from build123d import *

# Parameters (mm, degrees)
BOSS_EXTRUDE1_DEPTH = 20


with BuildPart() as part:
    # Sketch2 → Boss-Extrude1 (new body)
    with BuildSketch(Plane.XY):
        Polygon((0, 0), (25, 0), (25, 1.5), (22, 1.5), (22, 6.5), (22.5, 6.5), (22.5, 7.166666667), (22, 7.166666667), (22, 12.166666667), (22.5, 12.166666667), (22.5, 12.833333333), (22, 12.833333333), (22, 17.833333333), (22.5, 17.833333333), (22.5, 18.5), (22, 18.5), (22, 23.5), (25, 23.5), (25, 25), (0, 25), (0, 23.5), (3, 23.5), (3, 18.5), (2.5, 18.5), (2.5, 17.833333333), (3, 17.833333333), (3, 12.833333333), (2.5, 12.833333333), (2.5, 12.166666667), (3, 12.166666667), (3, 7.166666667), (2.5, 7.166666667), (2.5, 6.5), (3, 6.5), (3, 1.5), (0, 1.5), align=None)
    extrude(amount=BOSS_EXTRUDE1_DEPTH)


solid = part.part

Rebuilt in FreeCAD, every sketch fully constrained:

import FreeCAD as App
import Part
import Sketcher
from FreeCAD import Vector
Q = App.Units.Quantity

doc = App.newDocument("Part")
body = doc.addObject("PartDesign::Body", "Body")

sketch1 = body.newObject("Sketcher::SketchObject", "Sketch")
sketch1.AttachmentSupport = (doc.getObject("XY_Plane"), [""])
sketch1.MapMode = "FlatFace"
sketch1.addGeometry([
    Part.LineSegment(Vector(0, 0, 0), Vector(25, 0, 0)),
    Part.LineSegment(Vector(25, 0, 0), Vector(25, 1.5, 0)),
    Part.LineSegment(Vector(25, 1.5, 0), Vector(22, 1.5, 0)),
    Part.LineSegment(Vector(22, 1.5, 0), Vector(22, 6.5, 0)),
    Part.LineSegment(Vector(22, 6.5, 0), Vector(22.5, 6.5, 0)),
    Part.LineSegment(Vector(22.5, 6.5, 0), Vector(22.5, 7.166667, 0)),
    Part.LineSegment(Vector(22.5, 7.166667, 0), Vector(22, 7.166667, 0)),
    Part.LineSegment(Vector(22, 7.166667, 0), Vector(22, 12.166667, 0)),
    Part.LineSegment(Vector(22, 12.166667, 0), Vector(22.5, 12.166667, 0)),
    Part.LineSegment(Vector(22.5, 12.166667, 0), Vector(22.5, 12.833333, 0)),
    Part.LineSegment(Vector(22.5, 12.833333, 0), Vector(22, 12.833333, 0)),
    Part.LineSegment(Vector(22, 12.833333, 0), Vector(22, 17.833333, 0)),
    Part.LineSegment(Vector(22, 17.833333, 0), Vector(22.5, 17.833333, 0)),
    Part.LineSegment(Vector(22.5, 17.833333, 0), Vector(22.5, 18.5, 0)),
    Part.LineSegment(Vector(22.5, 18.5, 0), Vector(22, 18.5, 0)),
    Part.LineSegment(Vector(22, 18.5, 0), Vector(22, 23.5, 0)),
    Part.LineSegment(Vector(22, 23.5, 0), Vector(25, 23.5, 0)),
    Part.LineSegment(Vector(25, 23.5, 0), Vector(25, 25, 0)),
    Part.LineSegment(Vector(25, 25, 0), Vector(0, 25, 0)),
    Part.LineSegment(Vector(0, 25, 0), Vector(0, 23.5, 0)),
    Part.LineSegment(Vector(0, 23.5, 0), Vector(3, 23.5, 0)),
    Part.LineSegment(Vector(3, 23.5, 0), Vector(3, 18.5, 0)),
    Part.LineSegment(Vector(3, 18.5, 0), Vector(2.5, 18.5, 0)),
    Part.LineSegment(Vector(2.5, 18.5, 0), Vector(2.5, 17.833333, 0)),
    Part.LineSegment(Vector(2.5, 17.833333, 0), Vector(3, 17.833333, 0)),
    Part.LineSegment(Vector(3, 17.833333, 0), Vector(3, 12.833333, 0)),
    Part.LineSegment(Vector(3, 12.833333, 0), Vector(2.5, 12.833333, 0)),
    Part.LineSegment(Vector(2.5, 12.833333, 0), Vector(2.5, 12.166667, 0)),
    Part.LineSegment(Vector(2.5, 12.166667, 0), Vector(3, 12.166667, 0)),
    Part.LineSegment(Vector(3, 12.166667, 0), Vector(3, 7.166667, 0)),
    Part.LineSegment(Vector(3, 7.166667, 0), Vector(2.5, 7.166667, 0)),
    Part.LineSegment(Vector(2.5, 7.166667, 0), Vector(2.5, 6.5, 0)),
    Part.LineSegment(Vector(2.5, 6.5, 0), Vector(3, 6.5, 0)),
    Part.LineSegment(Vector(3, 6.5, 0), Vector(3, 1.5, 0)),
    Part.LineSegment(Vector(3, 1.5, 0), Vector(0, 1.5, 0)),
    Part.LineSegment(Vector(0, 1.5, 0), Vector(0, 0, 0)),
], False)
sketch1.addConstraint([
    Sketcher.Constraint("Coincident", 0, 2, 1, 1),
    Sketcher.Constraint("Coincident", 1, 2, 2, 1),
    Sketcher.Constraint("Coincident", 2, 2, 3, 1),
    Sketcher.Constraint("Coincident", 3, 2, 4, 1),
    Sketcher.Constraint("Coincident", 4, 2, 5, 1),
    Sketcher.Constraint("Coincident", 5, 2, 6, 1),
    Sketcher.Constraint("Coincident", 6, 2, 7, 1),
    Sketcher.Constraint("Coincident", 7, 2, 8, 1),
    Sketcher.Constraint("Coincident", 8, 2, 9, 1),
    Sketcher.Constraint("Coincident", 9, 2, 10, 1),
    Sketcher.Constraint("Coincident", 10, 2, 11, 1),
    Sketcher.Constraint("Coincident", 11, 2, 12, 1),
    Sketcher.Constraint("Coincident", 12, 2, 13, 1),
    Sketcher.Constraint("Coincident", 13, 2, 14, 1),
    Sketcher.Constraint("Coincident", 14, 2, 15, 1),
    Sketcher.Constraint("Coincident", 15, 2, 16, 1),
    Sketcher.Constraint("Coincident", 16, 2, 17, 1),
    Sketcher.Constraint("Coincident", 17, 2, 18, 1),
    Sketcher.Constraint("Coincident", 18, 2, 19, 1),
    Sketcher.Constraint("Coincident", 19, 2, 20, 1),
    Sketcher.Constraint("Coincident", 20, 2, 21, 1),
    Sketcher.Constraint("Coincident", 21, 2, 22, 1),
    Sketcher.Constraint("Coincident", 22, 2, 23, 1),
    Sketcher.Constraint("Coincident", 23, 2, 24, 1),
    Sketcher.Constraint("Coincident", 24, 2, 25, 1),
    Sketcher.Constraint("Coincident", 25, 2, 26, 1),
    Sketcher.Constraint("Coincident", 26, 2, 27, 1),
    Sketcher.Constraint("Coincident", 27, 2, 28, 1),
    Sketcher.Constraint("Coincident", 28, 2, 29, 1),
    Sketcher.Constraint("Coincident", 29, 2, 30, 1),
    Sketcher.Constraint("Coincident", 30, 2, 31, 1),
    Sketcher.Constraint("Coincident", 31, 2, 32, 1),
    Sketcher.Constraint("Coincident", 32, 2, 33, 1),
    Sketcher.Constraint("Coincident", 33, 2, 34, 1),
    Sketcher.Constraint("Coincident", 34, 2, 35, 1),
    Sketcher.Constraint("Coincident", 35, 2, 0, 1),
    Sketcher.Constraint("Horizontal", 0),
    Sketcher.Constraint("Vertical", 1),
    Sketcher.Constraint("Horizontal", 2),
    Sketcher.Constraint("Vertical", 3),
    Sketcher.Constraint("Horizontal", 4),
    Sketcher.Constraint("Vertical", 5),
    Sketcher.Constraint("Horizontal", 6),
    Sketcher.Constraint("Vertical", 7),
    Sketcher.Constraint("Horizontal", 8),
    Sketcher.Constraint("Vertical", 9),
    Sketcher.Constraint("Horizontal", 10),
    Sketcher.Constraint("Vertical", 11),
    Sketcher.Constraint("Horizontal", 12),
    Sketcher.Constraint("Vertical", 13),
    Sketcher.Constraint("Horizontal", 14),
    Sketcher.Constraint("Vertical", 15),
    Sketcher.Constraint("Horizontal", 16),
    Sketcher.Constraint("Vertical", 17),
    Sketcher.Constraint("Horizontal", 18),
    Sketcher.Constraint("Vertical", 19),
    Sketcher.Constraint("Horizontal", 20),
    Sketcher.Constraint("Vertical", 21),
    Sketcher.Constraint("Horizontal", 22),
    Sketcher.Constraint("Vertical", 23),
    Sketcher.Constraint("Horizontal", 24),
    Sketcher.Constraint("Vertical", 25),
    Sketcher.Constraint("Horizontal", 26),
    Sketcher.Constraint("Vertical", 27),
    Sketcher.Constraint("Horizontal", 28),
    Sketcher.Constraint("Vertical", 29),
    Sketcher.Constraint("Horizontal", 30),
    Sketcher.Constraint("Vertical", 31),
    Sketcher.Constraint("Horizontal", 32),
    Sketcher.Constraint("Vertical", 33),
    Sketcher.Constraint("Horizontal", 34),
    Sketcher.Constraint("Vertical", 35),
    Sketcher.Constraint("Coincident", 35, 2, -1, 1),
    Sketcher.Constraint("PointOnObject", 18, 2, -2),
    Sketcher.Constraint("Horizontal", 16, 2, 19, 2),
    Sketcher.Constraint("Horizontal", 14, 2, 21, 2),
    Sketcher.Constraint("Horizontal", 12, 2, 23, 2),
    Sketcher.Constraint("Horizontal", 10, 2, 25, 2),
    Sketcher.Constraint("Horizontal", 8, 2, 27, 2),
    Sketcher.Constraint("Horizontal", 6, 2, 29, 2),
    Sketcher.Constraint("Horizontal", 4, 2, 31, 2),
    Sketcher.Constraint("Horizontal", 2, 2, 33, 2),
    Sketcher.Constraint("Vertical", 3, 2, 6, 2),
    Sketcher.Constraint("Vertical", 5, 2, 8, 2),
    Sketcher.Constraint("Vertical", 7, 2, 10, 2),
    Sketcher.Constraint("Vertical", 9, 2, 12, 2),
    Sketcher.Constraint("Vertical", 11, 2, 14, 2),
    Sketcher.Constraint("Vertical", 1, 2, 16, 2),
    Sketcher.Constraint("Vertical", 21, 2, 24, 2),
    Sketcher.Constraint("Vertical", 23, 2, 26, 2),
    Sketcher.Constraint("Vertical", 25, 2, 28, 2),
    Sketcher.Constraint("Vertical", 27, 2, 30, 2),
    Sketcher.Constraint("Vertical", 29, 2, 32, 2),
    Sketcher.Constraint("Equal", 16, 20),
    Sketcher.Constraint("Equal", 14, 22),
    Sketcher.Constraint("Equal", 3, 7),
    Sketcher.Constraint("Equal", 5, 9),
    Sketcher.Constraint("Equal", 7, 11),
    Sketcher.Constraint("Equal", 9, 13),
    Sketcher.Constraint("Equal", 11, 15),
    Sketcher.Constraint("Equal", 1, 17),
    Sketcher.Constraint("DistanceX", 0, 1, 0, 2, Q("25 mm")),
    Sketcher.Constraint("DistanceX", 2, 2, 2, 1, Q("3 mm")),
    Sketcher.Constraint("DistanceY", 3, 1, 3, 2, Q("5 mm")),
    Sketcher.Constraint("DistanceX", 4, 1, 4, 2, Q("0.5 mm")),
    Sketcher.Constraint("DistanceY", 1, 1, 1, 2, Q("1.5 mm")),
    Sketcher.Constraint("DistanceY", -1, 1, 17, 2, Q("25 mm")),
])
pad1 = body.newObject("PartDesign::Pad", "Pad")
pad1.Profile = sketch1
pad1.Length = 20

doc.recompute()
